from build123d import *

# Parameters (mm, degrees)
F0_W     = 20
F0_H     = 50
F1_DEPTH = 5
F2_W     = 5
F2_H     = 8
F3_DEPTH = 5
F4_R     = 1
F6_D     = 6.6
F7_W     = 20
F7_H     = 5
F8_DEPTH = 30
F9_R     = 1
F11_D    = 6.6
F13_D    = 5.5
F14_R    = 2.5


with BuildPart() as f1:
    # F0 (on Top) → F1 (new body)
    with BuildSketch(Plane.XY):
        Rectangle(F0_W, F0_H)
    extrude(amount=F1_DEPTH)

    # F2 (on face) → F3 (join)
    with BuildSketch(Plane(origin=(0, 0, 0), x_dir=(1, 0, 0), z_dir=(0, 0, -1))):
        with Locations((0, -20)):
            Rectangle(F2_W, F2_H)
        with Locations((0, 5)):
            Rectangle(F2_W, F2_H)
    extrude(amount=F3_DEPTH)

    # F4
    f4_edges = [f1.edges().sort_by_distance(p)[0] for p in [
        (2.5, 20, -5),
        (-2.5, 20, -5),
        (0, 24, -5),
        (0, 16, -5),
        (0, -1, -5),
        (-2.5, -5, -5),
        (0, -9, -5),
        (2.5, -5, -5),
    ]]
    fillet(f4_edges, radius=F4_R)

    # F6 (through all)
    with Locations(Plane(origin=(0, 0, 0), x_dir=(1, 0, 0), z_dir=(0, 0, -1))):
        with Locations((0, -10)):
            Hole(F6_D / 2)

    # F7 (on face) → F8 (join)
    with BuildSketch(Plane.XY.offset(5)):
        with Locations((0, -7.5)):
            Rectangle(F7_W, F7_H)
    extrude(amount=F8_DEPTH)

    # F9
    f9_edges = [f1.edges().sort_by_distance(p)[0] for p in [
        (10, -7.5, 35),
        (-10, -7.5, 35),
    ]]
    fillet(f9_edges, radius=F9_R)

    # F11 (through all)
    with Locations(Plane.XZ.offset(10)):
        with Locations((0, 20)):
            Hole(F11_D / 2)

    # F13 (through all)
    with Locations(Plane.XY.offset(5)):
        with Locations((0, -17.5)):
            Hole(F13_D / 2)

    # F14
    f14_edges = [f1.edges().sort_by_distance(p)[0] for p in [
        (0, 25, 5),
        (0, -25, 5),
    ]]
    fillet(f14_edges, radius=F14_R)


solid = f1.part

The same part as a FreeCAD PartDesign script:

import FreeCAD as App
import Part
import Sketcher

V = App.Vector


def edges_at(feature, points):
    """Names of the edges that pass closest to the given points."""
    edges = feature.Shape.Edges
    near = lambda p: min(range(len(edges)), key=lambda i: edges[i].distToShape(Part.Vertex(*p))[0])
    return sorted({f"Edge{near(p) + 1}" for p in points})

doc = App.newDocument("Part")
body = doc.addObject("PartDesign::Body", "Body")

# Sketch on XY plane
sketch1 = doc.addObject("Sketcher::SketchObject", "Sketch")
body.addObject(sketch1)
sketch1.AttachmentSupport = (doc.XY_Plane, [""])
sketch1.MapMode = "FlatFace"
sketch1.addGeometry([
    Part.LineSegment(V(-10, 25, 0), V(-10, -25, 0)),
    Part.LineSegment(V(-10, -25, 0), V(10, -25, 0)),
    Part.LineSegment(V(10, -25, 0), V(10, 25, 0)),
    Part.LineSegment(V(10, 25, 0), V(-10, 25, 0)),
], False)
sketch1.addConstraint([
    Sketcher.Constraint("Coincident", 0, 2, 1, 1),
    Sketcher.Constraint("Coincident", 1, 2, 2, 1),
    Sketcher.Constraint("Coincident", 2, 2, 3, 1),
    Sketcher.Constraint("Coincident", 3, 2, 0, 1),
    Sketcher.Constraint("Vertical", 0),
    Sketcher.Constraint("Horizontal", 1),
    Sketcher.Constraint("Vertical", 2),
    Sketcher.Constraint("Horizontal", 3),
    Sketcher.Constraint("Symmetric", 0, 2, 2, 2, -1, 1),
    Sketcher.Constraint("DistanceX", 1, 1, 1, 2, 20.0),
    Sketcher.Constraint("DistanceY", 0, 2, 0, 1, 50.0),
])
pad1 = doc.addObject("PartDesign::Pad", "Pad")
body.addObject(pad1)
pad1.Profile = sketch1
pad1.Length = 5

# Sketch on XY plane
sketch2 = doc.addObject("Sketcher::SketchObject", "Sketch001")
body.addObject(sketch2)
sketch2.AttachmentSupport = (doc.XY_Plane, [""])
sketch2.MapMode = "FlatFace"
sketch2.addGeometry([
    Part.LineSegment(V(-2.5, 16, 0), V(-2.5, 24, 0)),  # 0
    Part.LineSegment(V(-2.5, 24, 0), V(2.5, 24, 0)),  # 1
    Part.LineSegment(V(2.5, 24, 0), V(2.5, 16, 0)),  # 2
    Part.LineSegment(V(2.5, 16, 0), V(-2.5, 16, 0)),  # 3
    Part.LineSegment(V(-2.5, -9, 0), V(-2.5, -1, 0)),  # 4
    Part.LineSegment(V(-2.5, -1, 0), V(2.5, -1, 0)),  # 5
    Part.LineSegment(V(2.5, -1, 0), V(2.5, -9, 0)),  # 6
    Part.LineSegment(V(2.5, -9, 0), V(-2.5, -9, 0)),  # 7
], False)
sketch2.addConstraint([
    Sketcher.Constraint("Coincident", 0, 2, 1, 1),
    Sketcher.Constraint("Coincident", 1, 2, 2, 1),
    Sketcher.Constraint("Coincident", 2, 2, 3, 1),
    Sketcher.Constraint("Coincident", 3, 2, 0, 1),
    Sketcher.Constraint("Coincident", 4, 2, 5, 1),
    Sketcher.Constraint("Coincident", 5, 2, 6, 1),
    Sketcher.Constraint("Coincident", 6, 2, 7, 1),
    Sketcher.Constraint("Coincident", 7, 2, 4, 1),
    Sketcher.Constraint("Vertical", 0),
    Sketcher.Constraint("Horizontal", 1),
    Sketcher.Constraint("Vertical", 2),
    Sketcher.Constraint("Horizontal", 3),
    Sketcher.Constraint("Vertical", 4),
    Sketcher.Constraint("Horizontal", 5),
    Sketcher.Constraint("Vertical", 6),
    Sketcher.Constraint("Horizontal", 7),
    Sketcher.Constraint("Vertical", 3, 2, 4, 2),
    Sketcher.Constraint("Vertical", 2, 2, 5, 2),
    Sketcher.Constraint("Equal", 2, 4),
    Sketcher.Constraint("DistanceX", 1, 1, 1, 2, 5.0),
    Sketcher.Constraint("DistanceY", 0, 1, 0, 2, 8.0),
    Sketcher.Constraint("DistanceY", -1, 1, 0, 2, 24.0),
    Sketcher.Constraint("DistanceY", 4, 2, -1, 1, 1.0),
    Sketcher.Constraint("DistanceX", 0, 2, -1, 1, 2.5),
])
pad2 = doc.addObject("PartDesign::Pad", "Pad001")
body.addObject(pad2)
pad2.Profile = sketch2
pad2.Length = 5
pad2.Reversed = True
doc.recompute()

fillet = doc.addObject("PartDesign::Fillet", "Fillet")
body.addObject(fillet)
fillet.Base = (pad2, edges_at(pad2, [
    (2.5, 20, -5),
    (-2.5, 20, -5),
    (0, 24, -5),
    (0, 16, -5),
    (0, -1, -5),
    (-2.5, -5, -5),
    (0, -9, -5),
    (2.5, -5, -5),
]))
fillet.Radius = 1

# Sketch on XY plane
sketch3 = doc.addObject("Sketcher::SketchObject", "Sketch002")
body.addObject(sketch3)
sketch3.AttachmentSupport = (doc.XY_Plane, [""])
sketch3.MapMode = "FlatFace"
sketch3.addGeometry(Part.Circle(V(0, 10, 0), V(0, 0, 1), 3.3), False)
sketch3.addConstraint([
    Sketcher.Constraint("PointOnObject", 0, 3, -2),
    Sketcher.Constraint("Diameter", 0, 6.6),
    Sketcher.Constraint("DistanceY", -1, 1, 0, 3, 10.0),
])
doc.recompute()
hole = doc.addObject("PartDesign::Hole", "Hole")
body.addObject(hole)
hole.Profile = sketch3
hole.ThreadType = "None"
hole.Diameter = 6.6
hole.DepthType = "ThroughAll"
hole.Reversed = True

# Sketch on XY plane
sketch4 = doc.addObject("Sketcher::SketchObject", "Sketch003")
body.addObject(sketch4)
sketch4.AttachmentSupport = (doc.XY_Plane, [""])
sketch4.MapMode = "FlatFace"
sketch4.AttachmentOffset = App.Placement(V(0, 0, 5), App.Rotation())
sketch4.addGeometry([
    Part.LineSegment(V(-10, -5, 0), V(-10, -10, 0)),
    Part.LineSegment(V(-10, -10, 0), V(10, -10, 0)),
    Part.LineSegment(V(10, -10, 0), V(10, -5, 0)),
    Part.LineSegment(V(10, -5, 0), V(-10, -5, 0)),
], False)
sketch4.addConstraint([
    Sketcher.Constraint("Coincident", 0, 2, 1, 1),
    Sketcher.Constraint("Coincident", 1, 2, 2, 1),
    Sketcher.Constraint("Coincident", 2, 2, 3, 1),
    Sketcher.Constraint("Coincident", 3, 2, 0, 1),
    Sketcher.Constraint("Vertical", 0),
    Sketcher.Constraint("Horizontal", 1),
    Sketcher.Constraint("Vertical", 2),
    Sketcher.Constraint("Horizontal", 3),
    Sketcher.Constraint("DistanceX", 1, 1, 1, 2, 20.0),
    Sketcher.Constraint("DistanceY", 0, 2, 0, 1, 5.0),
    Sketcher.Constraint("DistanceX", 0, 2, -1, 1, 10.0),
    Sketcher.Constraint("DistanceY", 0, 2, -1, 1, 10.0),
])
pad3 = doc.addObject("PartDesign::Pad", "Pad002")
body.addObject(pad3)
pad3.Profile = sketch4
pad3.Length = 30
doc.recompute()

fillet2 = doc.addObject("PartDesign::Fillet", "Fillet001")
body.addObject(fillet2)
fillet2.Base = (pad3, edges_at(pad3, [(10, -7.5, 35), (-10, -7.5, 35)]))
fillet2.Radius = 1

# Sketch on XZ plane
sketch5 = doc.addObject("Sketcher::SketchObject", "Sketch004")
body.addObject(sketch5)
sketch5.AttachmentSupport = (doc.XZ_Plane, [""])
sketch5.MapMode = "FlatFace"
sketch5.AttachmentOffset = App.Placement(V(0, 0, 10), App.Rotation())
sketch5.addGeometry(Part.Circle(V(0, 20, 0), V(0, 0, 1), 3.3), False)
sketch5.addConstraint([
    Sketcher.Constraint("PointOnObject", 0, 3, -2),
    Sketcher.Constraint("Diameter", 0, 6.6),
    Sketcher.Constraint("DistanceY", -1, 1, 0, 3, 20.0),
])
doc.recompute()
hole2 = doc.addObject("PartDesign::Hole", "Hole001")
body.addObject(hole2)
hole2.Profile = sketch5
hole2.ThreadType = "None"
hole2.Diameter = 6.6
hole2.DepthType = "ThroughAll"

# Sketch on XY plane
sketch6 = doc.addObject("Sketcher::SketchObject", "Sketch005")
body.addObject(sketch6)
sketch6.AttachmentSupport = (doc.XY_Plane, [""])
sketch6.MapMode = "FlatFace"
sketch6.AttachmentOffset = App.Placement(V(0, 0, 5), App.Rotation())
sketch6.addGeometry(Part.Circle(V(0, -17.5, 0), V(0, 0, 1), 2.75), False)
sketch6.addConstraint([
    Sketcher.Constraint("PointOnObject", 0, 3, -2),
    Sketcher.Constraint("Diameter", 0, 5.5),
    Sketcher.Constraint("DistanceY", 0, 3, -1, 1, 17.5),
])
doc.recompute()
hole3 = doc.addObject("PartDesign::Hole", "Hole002")
body.addObject(hole3)
hole3.Profile = sketch6
hole3.ThreadType = "None"
hole3.Diameter = 5.5
hole3.DepthType = "ThroughAll"
doc.recompute()

fillet3 = doc.addObject("PartDesign::Fillet", "Fillet002")
body.addObject(fillet3)
fillet3.Base = (hole3, edges_at(hole3, [(0, 25, 5), (0, -25, 5)]))
fillet3.Radius = 2.5

doc.recompute()
